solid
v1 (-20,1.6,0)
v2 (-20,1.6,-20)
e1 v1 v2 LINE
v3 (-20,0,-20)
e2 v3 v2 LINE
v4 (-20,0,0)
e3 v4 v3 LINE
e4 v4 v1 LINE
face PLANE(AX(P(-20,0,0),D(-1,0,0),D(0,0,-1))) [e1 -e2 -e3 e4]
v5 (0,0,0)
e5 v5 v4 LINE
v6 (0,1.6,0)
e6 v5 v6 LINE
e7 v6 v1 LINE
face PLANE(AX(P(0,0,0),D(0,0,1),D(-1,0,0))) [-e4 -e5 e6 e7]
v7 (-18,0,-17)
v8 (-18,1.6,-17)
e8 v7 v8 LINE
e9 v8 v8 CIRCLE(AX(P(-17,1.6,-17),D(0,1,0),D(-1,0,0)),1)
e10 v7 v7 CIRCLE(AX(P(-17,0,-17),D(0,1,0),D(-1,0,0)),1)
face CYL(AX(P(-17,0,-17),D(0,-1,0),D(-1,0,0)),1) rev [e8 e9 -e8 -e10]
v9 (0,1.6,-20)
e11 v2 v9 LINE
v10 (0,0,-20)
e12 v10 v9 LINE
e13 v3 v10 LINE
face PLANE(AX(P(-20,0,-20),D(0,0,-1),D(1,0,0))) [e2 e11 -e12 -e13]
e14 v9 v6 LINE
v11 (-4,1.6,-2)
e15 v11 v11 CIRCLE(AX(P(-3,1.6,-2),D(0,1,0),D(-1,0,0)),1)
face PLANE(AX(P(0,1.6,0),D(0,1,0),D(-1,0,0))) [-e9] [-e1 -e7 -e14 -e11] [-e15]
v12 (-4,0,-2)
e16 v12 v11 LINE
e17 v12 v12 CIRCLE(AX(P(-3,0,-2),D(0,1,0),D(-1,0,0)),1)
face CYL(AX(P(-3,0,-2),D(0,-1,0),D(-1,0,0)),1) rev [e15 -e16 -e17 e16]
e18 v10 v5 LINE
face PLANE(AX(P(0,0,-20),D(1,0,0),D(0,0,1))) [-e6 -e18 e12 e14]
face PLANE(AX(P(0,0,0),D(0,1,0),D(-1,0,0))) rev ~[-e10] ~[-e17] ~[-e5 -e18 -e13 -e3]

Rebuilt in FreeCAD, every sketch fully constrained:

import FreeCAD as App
import Part
import Sketcher

V = App.Vector
Q = App.Units.Quantity


def add_polygon(sketch, points):
    """Adds a closed chain of lines whose ends are joined by coincident constraints."""
    first, n = sketch.GeometryCount, len(points)
    for a, b in zip(points, points[1:] + points[:1]):
        sketch.addGeometry(Part.LineSegment(App.Vector(*a, 0), App.Vector(*b, 0)), False)
    for i in range(n):
        sketch.addConstraint(Sketcher.Constraint("Coincident", first + i, 2, first + (i + 1) % n, 1))

doc = App.newDocument("Part")
body = doc.addObject("PartDesign::Body", "Body")

# Sketch on XZ plane
sketch1 = body.newObject("Sketcher::SketchObject", "Sketch")
sketch1.AttachmentSupport = (doc.getObject("XZ_Plane"), [""])
sketch1.MapMode = "FlatFace"
add_polygon(sketch1, [(-20, 0), (0, 0), (0, -20), (-20, -20)])  # lines 0-3
sketch1.addGeometry(Part.Circle(V(-17, -17, 0), V(0, 0, 1), 1), False)  # 4
sketch1.addGeometry(Part.Circle(V(-3, -2, 0), V(0, 0, 1), 1), False)  # 5
sketch1.addConstraint(Sketcher.Constraint("Horizontal", 0))
sketch1.addConstraint(Sketcher.Constraint("Vertical", 1))
sketch1.addConstraint(Sketcher.Constraint("Horizontal", 2))
sketch1.addConstraint(Sketcher.Constraint("Vertical", 3))
sketch1.addConstraint(Sketcher.Constraint("Coincident", 0, 2, -1, 1))
sketch1.addConstraint(Sketcher.Constraint("Equal", 4, 5))
sketch1.addConstraint(Sketcher.Constraint("Equal", 2, 1))
sketch1.addConstraint(Sketcher.Constraint("Diameter", 4, Q("2 mm")))
sketch1.addConstraint(Sketcher.Constraint("DistanceX", 0, 1, 0, 2, Q("20 mm")))
sketch1.addConstraint(Sketcher.Constraint("DistanceY", 5, 3, -1, 1, Q("2 mm")))
sketch1.addConstraint(Sketcher.Constraint("DistanceX", 4, 3, -1, 1, Q("17 mm")))
sketch1.addConstraint(Sketcher.Constraint("DistanceY", 4, 3, -1, 1, Q("17 mm")))
sketch1.addConstraint(Sketcher.Constraint("DistanceX", 5, 3, -1, 1, Q("3 mm")))
pad1 = body.newObject("PartDesign::Pad", "Pad")
pad1.Profile = sketch1
pad1.Length = 1.6
pad1.Reversed = True

doc.recompute()
